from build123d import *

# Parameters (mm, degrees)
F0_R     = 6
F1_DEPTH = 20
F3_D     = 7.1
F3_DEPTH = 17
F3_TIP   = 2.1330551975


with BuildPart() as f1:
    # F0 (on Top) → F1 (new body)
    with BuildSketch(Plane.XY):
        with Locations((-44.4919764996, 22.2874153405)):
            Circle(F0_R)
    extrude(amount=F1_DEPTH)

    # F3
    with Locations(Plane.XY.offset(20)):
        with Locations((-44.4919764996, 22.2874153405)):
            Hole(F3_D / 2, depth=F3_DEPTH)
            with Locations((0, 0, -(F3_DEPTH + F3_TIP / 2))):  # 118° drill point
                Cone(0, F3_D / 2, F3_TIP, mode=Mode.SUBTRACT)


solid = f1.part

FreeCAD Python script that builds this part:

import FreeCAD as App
import Part
import Sketcher
Q = App.Units.Quantity

doc = App.newDocument("Part")
body = doc.addObject("PartDesign::Body", "Body")

sketch1 = doc.addObject("Sketcher::SketchObject", "Sketch")
body.addObject(sketch1)
sketch1.AttachmentSupport = (doc.XY_Plane, [""])
sketch1.MapMode = "FlatFace"
sketch1.addGeometry(Part.Circle(App.Vector(-44, 22, 0), App.Vector(0, 0, 1), 6), False)
sketch1.addConstraint([
    Sketcher.Constraint("Diameter", 0, Q("12 mm")),
    Sketcher.Constraint("DistanceX", 0, 3, -1, 1, Q("44.491976 mm")),
    Sketcher.Constraint("DistanceY", -1, 1, 0, 3, Q("22.287415 mm")),
])
pad1 = doc.addObject("PartDesign::Pad", "Pad")
body.addObject(pad1)
pad1.Profile = sketch1
pad1.Length = 20

sketch2 = doc.addObject("Sketcher::SketchObject", "Sketch001")
body.addObject(sketch2)
sketch2.AttachmentSupport = (doc.XY_Plane, [""])
sketch2.MapMode = "FlatFace"
sketch2.AttachmentOffset = App.Placement(App.Vector(0, 0, 20), App.Rotation())
sketch2.addGeometry(Part.Circle(App.Vector(-44.5, 22.3, 0), App.Vector(0, 0, 1), 3.5), False)
sketch2.addConstraint([
    Sketcher.Constraint("Diameter", 0, Q("7.1 mm")),
    Sketcher.Constraint("DistanceX", 0, 3, -1, 1, Q("44.491976 mm")),
    Sketcher.Constraint("DistanceY", -1, 1, 0, 3, Q("22.287415 mm")),
])
doc.recompute()
hole = doc.addObject("PartDesign::Hole", "Hole")
body.addObject(hole)
hole.Profile = sketch2
hole.ThreadType = "None"
hole.Diameter = 7.1
hole.DepthType = "Dimension"
hole.Depth = 17
hole.DrillPoint = "Angled"
hole.DrillPointAngle = 118

doc.recompute()
